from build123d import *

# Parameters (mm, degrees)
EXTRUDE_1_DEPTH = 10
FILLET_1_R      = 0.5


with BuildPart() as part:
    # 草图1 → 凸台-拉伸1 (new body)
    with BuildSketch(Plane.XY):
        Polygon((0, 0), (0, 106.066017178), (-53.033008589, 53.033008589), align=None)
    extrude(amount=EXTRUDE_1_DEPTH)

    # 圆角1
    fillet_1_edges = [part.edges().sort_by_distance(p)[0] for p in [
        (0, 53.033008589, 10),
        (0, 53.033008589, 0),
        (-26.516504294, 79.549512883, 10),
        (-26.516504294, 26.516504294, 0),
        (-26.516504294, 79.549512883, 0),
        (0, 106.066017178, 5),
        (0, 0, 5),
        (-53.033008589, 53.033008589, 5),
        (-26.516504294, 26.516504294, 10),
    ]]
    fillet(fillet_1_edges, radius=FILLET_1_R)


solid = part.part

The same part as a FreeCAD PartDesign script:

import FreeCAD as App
import Part
import Sketcher


def add_polygon(sketch, points):
    """Adds a closed chain of lines whose ends are joined by coincident constraints."""
    first, n = sketch.GeometryCount, len(points)
    for a, b in zip(points, points[1:] + points[:1]):
        sketch.addGeometry(Part.LineSegment(App.Vector(*a, 0), App.Vector(*b, 0)), False)
    for i in range(n):
        sketch.addConstraint(Sketcher.Constraint("Coincident", first + i, 2, first + (i + 1) % n, 1))

doc = App.newDocument("Part")
body = doc.addObject("PartDesign::Body", "Body")

sketch1 = body.newObject("Sketcher::SketchObject", "Sketch")
sketch1.AttachmentSupport = (doc.getObject("XY_Plane"), [""])
sketch1.MapMode = "FlatFace"
add_polygon(sketch1, [(0, 0), (0, 106), (-53, 53)])
sketch1.addConstraint(Sketcher.Constraint("Vertical", 0))
sketch1.addConstraint(Sketcher.Constraint("Coincident", 2, 2, -1, 1))
sketch1.addConstraint(Sketcher.Constraint("Perpendicular", 1, 2))
sketch1.addConstraint(Sketcher.Constraint("Equal", 1, 2))
sketch1.addConstraint(Sketcher.Constraint("Distance", 1, 75.0))
pad1 = body.newObject("PartDesign::Pad", "Pad")
pad1.Profile = sketch1
pad1.Length = 10
doc.recompute()

fillet = body.newObject("PartDesign::Fillet", "Fillet")
fillet.Base = (pad1, ["Edge1"])
fillet.UseAllEdges = True
fillet.Radius = 0.5

doc.recompute()
